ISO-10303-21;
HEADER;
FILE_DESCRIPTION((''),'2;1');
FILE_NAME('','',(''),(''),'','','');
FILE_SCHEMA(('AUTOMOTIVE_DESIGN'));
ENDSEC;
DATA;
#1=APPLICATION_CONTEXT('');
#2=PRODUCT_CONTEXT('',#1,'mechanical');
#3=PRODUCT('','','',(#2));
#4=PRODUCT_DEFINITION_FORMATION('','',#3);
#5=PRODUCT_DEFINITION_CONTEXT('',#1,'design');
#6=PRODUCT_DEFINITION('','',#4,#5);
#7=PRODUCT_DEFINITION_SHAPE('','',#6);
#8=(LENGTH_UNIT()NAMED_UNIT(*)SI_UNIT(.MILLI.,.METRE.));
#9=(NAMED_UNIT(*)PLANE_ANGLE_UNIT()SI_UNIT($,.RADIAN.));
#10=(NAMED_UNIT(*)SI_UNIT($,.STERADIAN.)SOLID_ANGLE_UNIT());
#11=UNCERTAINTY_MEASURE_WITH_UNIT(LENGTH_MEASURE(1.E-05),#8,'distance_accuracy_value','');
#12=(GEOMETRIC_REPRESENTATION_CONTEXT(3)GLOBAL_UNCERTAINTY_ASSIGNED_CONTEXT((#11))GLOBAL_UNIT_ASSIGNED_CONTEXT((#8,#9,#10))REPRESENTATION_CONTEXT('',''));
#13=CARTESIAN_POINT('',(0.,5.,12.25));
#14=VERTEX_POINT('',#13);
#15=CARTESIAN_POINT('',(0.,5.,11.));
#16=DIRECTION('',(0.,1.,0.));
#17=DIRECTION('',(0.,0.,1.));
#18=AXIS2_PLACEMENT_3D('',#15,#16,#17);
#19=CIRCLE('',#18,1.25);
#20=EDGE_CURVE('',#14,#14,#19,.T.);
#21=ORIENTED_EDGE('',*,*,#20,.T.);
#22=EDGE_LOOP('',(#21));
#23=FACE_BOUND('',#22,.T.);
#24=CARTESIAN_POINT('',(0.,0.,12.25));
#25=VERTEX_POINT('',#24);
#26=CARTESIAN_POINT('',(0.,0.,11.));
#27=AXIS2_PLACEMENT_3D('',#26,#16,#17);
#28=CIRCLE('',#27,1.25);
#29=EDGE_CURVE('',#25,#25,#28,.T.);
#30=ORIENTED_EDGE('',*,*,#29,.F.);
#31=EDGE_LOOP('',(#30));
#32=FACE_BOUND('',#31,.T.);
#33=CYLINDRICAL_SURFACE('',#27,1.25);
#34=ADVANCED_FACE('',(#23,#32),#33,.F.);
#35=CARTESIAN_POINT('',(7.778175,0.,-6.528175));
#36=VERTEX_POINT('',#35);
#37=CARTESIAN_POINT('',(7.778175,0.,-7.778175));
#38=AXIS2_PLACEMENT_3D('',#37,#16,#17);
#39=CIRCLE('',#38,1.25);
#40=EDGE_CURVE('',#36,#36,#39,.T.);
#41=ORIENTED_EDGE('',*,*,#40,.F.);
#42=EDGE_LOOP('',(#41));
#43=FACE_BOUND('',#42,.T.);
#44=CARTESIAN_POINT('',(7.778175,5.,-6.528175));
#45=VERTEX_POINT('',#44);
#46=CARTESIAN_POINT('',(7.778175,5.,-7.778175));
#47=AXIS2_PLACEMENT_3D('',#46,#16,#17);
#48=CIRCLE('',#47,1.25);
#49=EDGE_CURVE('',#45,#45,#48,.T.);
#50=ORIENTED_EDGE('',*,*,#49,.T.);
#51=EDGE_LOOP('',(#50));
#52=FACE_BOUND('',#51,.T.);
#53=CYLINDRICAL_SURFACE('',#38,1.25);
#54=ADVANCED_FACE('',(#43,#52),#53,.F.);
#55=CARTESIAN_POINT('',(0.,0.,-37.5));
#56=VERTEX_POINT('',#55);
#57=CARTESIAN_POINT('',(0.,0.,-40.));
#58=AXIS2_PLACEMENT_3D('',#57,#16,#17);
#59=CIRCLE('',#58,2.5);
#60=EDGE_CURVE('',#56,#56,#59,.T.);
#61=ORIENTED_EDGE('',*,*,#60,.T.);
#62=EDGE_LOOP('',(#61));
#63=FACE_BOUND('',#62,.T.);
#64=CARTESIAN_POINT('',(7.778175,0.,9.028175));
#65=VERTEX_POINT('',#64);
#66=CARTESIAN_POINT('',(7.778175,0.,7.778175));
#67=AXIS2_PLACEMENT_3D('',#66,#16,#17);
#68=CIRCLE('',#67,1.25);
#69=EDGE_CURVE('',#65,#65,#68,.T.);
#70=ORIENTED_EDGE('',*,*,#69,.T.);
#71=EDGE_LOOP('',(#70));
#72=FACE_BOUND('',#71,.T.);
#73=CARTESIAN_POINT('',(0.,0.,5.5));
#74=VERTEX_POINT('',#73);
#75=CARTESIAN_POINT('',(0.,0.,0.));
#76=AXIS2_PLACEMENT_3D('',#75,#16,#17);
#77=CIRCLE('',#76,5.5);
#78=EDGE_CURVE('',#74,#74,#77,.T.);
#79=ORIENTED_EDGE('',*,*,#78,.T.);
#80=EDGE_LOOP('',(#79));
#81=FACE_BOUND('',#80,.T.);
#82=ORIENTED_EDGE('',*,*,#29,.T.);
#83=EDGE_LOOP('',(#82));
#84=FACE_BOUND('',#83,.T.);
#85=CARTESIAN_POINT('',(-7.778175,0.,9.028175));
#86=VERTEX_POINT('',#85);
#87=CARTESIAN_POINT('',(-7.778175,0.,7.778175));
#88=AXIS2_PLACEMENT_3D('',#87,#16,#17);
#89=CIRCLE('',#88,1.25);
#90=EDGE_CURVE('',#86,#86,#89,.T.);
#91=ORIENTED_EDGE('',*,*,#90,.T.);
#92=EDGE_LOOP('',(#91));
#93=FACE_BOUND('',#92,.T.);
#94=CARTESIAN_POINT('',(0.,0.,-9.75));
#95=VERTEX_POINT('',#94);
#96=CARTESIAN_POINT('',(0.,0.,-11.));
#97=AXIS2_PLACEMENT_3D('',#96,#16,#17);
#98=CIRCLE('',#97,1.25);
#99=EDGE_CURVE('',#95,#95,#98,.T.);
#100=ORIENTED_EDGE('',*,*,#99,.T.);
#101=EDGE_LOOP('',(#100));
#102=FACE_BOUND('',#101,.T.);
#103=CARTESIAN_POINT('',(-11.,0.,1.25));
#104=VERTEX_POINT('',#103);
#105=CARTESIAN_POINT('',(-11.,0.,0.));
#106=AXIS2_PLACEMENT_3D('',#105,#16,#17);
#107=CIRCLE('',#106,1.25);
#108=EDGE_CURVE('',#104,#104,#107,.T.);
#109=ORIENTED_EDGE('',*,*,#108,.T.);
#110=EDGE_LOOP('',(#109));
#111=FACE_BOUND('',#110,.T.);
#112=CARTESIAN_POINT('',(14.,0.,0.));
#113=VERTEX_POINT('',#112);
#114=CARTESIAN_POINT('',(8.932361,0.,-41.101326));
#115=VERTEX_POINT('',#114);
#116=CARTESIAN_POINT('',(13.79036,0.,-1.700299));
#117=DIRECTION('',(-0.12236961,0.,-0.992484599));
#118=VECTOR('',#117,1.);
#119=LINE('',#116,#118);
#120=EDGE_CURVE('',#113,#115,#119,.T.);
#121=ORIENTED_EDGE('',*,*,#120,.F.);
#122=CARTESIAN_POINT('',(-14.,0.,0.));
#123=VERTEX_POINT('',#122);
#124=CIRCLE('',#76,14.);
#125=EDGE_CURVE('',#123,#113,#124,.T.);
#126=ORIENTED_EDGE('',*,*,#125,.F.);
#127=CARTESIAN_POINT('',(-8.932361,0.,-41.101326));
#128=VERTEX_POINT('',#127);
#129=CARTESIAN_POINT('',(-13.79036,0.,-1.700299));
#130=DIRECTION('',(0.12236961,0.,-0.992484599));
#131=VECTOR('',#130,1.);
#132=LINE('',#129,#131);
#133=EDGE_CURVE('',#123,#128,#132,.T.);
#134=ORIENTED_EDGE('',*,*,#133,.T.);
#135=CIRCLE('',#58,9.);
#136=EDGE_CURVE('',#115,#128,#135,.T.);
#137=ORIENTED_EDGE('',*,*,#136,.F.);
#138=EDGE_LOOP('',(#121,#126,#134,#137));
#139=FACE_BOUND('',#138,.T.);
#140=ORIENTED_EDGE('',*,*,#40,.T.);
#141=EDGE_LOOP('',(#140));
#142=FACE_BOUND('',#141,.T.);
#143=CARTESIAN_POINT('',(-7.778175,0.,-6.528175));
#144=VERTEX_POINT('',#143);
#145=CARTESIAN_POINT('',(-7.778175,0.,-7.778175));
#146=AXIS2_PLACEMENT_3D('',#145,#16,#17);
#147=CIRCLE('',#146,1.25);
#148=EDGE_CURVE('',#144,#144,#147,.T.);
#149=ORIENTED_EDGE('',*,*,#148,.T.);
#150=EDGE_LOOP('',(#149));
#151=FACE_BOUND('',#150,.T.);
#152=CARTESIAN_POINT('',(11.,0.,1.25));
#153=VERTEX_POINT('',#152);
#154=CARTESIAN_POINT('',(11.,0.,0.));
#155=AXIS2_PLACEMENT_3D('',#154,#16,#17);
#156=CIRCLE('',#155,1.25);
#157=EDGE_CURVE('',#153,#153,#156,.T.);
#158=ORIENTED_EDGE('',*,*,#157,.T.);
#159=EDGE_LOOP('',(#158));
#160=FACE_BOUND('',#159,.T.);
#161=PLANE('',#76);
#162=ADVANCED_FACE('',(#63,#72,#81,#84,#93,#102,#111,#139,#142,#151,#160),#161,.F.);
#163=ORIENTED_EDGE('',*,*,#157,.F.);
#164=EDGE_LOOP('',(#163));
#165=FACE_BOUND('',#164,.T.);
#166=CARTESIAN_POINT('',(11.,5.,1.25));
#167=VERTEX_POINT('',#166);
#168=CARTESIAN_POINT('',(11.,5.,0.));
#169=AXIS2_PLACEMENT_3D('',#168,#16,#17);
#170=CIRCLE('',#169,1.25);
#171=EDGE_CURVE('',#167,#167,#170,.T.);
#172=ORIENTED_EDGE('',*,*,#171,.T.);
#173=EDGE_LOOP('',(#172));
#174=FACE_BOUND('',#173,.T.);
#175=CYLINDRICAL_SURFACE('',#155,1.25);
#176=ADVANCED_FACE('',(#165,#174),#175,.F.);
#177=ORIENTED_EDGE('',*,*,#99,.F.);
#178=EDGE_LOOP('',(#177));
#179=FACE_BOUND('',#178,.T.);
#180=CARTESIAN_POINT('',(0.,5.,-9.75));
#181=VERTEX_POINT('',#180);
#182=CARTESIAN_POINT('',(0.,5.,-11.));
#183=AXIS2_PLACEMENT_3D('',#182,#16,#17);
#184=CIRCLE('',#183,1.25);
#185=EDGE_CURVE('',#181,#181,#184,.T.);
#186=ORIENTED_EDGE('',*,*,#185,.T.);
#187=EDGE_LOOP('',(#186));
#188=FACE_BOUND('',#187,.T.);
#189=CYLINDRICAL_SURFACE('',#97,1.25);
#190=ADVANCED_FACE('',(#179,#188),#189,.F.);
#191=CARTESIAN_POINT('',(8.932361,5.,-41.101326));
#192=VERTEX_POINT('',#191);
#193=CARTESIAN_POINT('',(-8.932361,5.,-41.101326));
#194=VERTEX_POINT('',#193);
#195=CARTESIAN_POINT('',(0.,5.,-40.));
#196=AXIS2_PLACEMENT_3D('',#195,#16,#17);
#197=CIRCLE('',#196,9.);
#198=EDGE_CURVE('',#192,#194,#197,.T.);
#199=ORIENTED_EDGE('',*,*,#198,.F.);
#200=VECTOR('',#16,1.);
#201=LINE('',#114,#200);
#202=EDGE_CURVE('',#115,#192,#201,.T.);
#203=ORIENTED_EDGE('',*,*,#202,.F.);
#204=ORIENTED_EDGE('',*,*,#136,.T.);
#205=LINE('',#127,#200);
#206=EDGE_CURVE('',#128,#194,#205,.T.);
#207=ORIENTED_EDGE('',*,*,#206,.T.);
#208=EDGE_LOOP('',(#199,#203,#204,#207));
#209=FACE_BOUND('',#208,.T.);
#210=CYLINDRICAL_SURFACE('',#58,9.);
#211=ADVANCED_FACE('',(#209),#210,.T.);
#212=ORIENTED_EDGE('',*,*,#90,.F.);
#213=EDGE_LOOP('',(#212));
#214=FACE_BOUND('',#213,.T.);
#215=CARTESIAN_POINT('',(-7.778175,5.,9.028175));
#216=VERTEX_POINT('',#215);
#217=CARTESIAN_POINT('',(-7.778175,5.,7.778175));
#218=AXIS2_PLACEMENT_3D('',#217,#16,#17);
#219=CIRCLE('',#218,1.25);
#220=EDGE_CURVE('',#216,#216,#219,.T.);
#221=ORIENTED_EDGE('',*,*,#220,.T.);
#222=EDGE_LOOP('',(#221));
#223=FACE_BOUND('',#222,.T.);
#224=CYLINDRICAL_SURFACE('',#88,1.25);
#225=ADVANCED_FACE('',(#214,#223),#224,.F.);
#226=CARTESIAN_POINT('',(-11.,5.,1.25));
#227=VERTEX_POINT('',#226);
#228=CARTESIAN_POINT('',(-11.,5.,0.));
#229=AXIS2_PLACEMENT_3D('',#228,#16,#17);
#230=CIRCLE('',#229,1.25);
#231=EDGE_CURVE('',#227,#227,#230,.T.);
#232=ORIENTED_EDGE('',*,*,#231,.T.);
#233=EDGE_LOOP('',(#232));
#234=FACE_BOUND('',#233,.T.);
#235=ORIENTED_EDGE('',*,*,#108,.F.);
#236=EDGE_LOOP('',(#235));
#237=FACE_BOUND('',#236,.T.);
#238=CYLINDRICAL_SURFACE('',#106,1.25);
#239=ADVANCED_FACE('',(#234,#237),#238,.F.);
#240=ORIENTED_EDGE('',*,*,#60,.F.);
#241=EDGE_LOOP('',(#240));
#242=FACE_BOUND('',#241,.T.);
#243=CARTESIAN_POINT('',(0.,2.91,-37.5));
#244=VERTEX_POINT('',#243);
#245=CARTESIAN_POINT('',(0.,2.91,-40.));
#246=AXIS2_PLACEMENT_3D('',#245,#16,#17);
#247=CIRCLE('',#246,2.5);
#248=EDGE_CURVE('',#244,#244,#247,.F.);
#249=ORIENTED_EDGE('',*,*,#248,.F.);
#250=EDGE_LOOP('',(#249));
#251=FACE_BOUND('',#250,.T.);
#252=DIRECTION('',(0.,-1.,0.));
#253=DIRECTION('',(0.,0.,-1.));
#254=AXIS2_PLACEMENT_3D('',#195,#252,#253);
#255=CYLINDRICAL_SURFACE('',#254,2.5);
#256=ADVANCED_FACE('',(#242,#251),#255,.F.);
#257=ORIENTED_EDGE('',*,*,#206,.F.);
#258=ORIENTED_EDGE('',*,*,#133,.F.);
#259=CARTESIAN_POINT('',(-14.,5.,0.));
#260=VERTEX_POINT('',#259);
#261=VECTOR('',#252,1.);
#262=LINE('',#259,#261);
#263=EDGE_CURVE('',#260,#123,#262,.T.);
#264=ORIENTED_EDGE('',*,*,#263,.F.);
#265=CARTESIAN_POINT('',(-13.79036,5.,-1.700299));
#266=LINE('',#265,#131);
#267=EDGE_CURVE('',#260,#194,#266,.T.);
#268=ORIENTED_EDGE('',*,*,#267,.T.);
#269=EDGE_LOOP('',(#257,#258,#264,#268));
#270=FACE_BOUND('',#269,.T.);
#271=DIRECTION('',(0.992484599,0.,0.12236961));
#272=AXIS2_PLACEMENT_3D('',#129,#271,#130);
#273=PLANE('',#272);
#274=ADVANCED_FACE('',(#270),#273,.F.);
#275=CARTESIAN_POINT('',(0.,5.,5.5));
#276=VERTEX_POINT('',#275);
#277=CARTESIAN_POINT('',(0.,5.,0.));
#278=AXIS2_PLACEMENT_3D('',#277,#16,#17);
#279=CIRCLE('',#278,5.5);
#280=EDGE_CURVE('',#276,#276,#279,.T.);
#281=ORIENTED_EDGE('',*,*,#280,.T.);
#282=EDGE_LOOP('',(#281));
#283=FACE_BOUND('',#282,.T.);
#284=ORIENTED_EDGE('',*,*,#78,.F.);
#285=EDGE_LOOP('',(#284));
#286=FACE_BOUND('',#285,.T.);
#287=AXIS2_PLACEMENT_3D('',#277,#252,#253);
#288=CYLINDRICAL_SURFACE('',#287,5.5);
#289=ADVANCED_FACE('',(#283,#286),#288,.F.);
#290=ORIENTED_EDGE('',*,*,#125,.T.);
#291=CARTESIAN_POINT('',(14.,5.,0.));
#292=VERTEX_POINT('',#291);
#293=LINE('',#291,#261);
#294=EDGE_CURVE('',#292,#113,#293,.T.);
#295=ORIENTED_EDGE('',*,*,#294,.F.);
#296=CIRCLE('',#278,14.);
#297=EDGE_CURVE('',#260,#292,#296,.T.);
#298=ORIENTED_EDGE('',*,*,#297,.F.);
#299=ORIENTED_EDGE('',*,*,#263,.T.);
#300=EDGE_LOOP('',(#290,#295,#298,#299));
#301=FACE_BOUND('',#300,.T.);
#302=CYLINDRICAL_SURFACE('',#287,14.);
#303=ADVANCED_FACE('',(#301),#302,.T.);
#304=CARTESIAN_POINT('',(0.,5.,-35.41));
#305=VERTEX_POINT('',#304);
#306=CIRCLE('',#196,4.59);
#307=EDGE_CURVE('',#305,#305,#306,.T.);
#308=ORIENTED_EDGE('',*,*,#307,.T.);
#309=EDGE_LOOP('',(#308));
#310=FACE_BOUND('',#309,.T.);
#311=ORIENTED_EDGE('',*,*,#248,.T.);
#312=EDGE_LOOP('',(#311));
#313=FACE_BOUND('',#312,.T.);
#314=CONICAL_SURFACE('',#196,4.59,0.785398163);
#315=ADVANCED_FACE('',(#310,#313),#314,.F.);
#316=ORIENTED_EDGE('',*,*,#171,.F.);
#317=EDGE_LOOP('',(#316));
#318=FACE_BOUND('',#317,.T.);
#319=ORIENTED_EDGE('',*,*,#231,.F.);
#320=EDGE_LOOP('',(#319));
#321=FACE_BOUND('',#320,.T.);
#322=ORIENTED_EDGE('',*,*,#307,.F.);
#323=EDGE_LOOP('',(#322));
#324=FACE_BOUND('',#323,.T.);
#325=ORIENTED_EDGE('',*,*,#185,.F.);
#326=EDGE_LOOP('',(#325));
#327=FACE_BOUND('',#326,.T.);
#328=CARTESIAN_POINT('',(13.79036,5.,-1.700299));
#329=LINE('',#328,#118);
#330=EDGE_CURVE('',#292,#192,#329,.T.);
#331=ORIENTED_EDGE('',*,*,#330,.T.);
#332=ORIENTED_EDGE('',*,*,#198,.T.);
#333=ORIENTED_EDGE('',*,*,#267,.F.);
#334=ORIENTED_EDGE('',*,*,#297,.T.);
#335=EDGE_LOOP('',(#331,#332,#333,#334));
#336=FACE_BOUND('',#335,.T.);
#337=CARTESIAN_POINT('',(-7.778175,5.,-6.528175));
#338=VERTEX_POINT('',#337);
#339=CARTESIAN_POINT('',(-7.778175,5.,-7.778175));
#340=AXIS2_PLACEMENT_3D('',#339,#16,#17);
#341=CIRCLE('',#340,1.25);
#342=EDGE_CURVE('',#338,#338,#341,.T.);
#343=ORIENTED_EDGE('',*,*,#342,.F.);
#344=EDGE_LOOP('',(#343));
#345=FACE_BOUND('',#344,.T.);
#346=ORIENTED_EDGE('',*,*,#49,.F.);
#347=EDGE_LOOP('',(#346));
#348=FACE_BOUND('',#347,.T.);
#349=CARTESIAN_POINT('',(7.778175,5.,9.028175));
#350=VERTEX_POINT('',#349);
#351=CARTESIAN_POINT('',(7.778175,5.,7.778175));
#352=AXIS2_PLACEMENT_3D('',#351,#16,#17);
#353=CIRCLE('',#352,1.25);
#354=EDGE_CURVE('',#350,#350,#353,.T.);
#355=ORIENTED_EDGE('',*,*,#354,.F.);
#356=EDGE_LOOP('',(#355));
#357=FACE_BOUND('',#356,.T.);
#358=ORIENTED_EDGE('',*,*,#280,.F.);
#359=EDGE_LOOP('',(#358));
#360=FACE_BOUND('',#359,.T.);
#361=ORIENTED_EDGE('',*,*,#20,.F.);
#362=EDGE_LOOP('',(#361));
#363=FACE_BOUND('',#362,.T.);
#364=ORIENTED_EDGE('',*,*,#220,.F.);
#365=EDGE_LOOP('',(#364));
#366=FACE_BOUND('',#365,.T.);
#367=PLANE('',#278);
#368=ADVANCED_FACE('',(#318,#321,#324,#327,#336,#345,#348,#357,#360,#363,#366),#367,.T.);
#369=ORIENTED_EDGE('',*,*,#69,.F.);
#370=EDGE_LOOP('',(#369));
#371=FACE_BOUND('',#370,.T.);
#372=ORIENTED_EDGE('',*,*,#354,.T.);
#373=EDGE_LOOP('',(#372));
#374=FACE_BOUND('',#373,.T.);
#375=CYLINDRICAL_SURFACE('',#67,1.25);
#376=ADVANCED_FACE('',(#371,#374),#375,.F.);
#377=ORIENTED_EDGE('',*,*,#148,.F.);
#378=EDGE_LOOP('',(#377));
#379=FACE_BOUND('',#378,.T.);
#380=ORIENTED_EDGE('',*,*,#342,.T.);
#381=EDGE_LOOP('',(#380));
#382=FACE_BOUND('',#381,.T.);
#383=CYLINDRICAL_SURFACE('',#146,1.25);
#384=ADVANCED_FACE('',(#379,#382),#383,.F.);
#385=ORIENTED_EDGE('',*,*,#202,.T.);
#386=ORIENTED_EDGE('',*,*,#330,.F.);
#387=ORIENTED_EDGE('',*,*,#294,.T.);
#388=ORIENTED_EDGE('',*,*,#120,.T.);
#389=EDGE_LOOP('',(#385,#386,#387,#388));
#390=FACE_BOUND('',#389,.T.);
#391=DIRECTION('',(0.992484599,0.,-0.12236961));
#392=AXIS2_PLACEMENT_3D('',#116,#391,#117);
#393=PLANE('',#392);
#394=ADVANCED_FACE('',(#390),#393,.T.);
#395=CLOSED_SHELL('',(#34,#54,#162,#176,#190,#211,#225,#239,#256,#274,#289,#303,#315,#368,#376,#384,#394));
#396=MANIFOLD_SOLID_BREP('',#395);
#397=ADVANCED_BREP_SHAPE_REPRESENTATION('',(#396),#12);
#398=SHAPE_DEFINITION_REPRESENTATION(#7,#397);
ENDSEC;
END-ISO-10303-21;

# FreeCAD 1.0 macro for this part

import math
import FreeCAD as App
import Part
import Sketcher
from FreeCAD import Vector

doc = App.newDocument("Part")
body = doc.addObject("PartDesign::Body", "Body")

sketch1 = body.newObject("Sketcher::SketchObject", "Sketch")
sketch1.AttachmentSupport = (doc.getObject("XZ_Plane"), [""])
sketch1.MapMode = "FlatFace"
sketch1.addGeometry(Part.LineSegment(Vector(-14, -40, 0), Vector(-14, 0, 0)), False)
sketch1.addGeometry(Part.ArcOfCircle(Part.Circle(Vector(0, 0, 0), Vector(0, 0, 1), 14), math.radians(0), math.radians(180)), False)
sketch1.addGeometry(Part.LineSegment(Vector(14, 0, 0), Vector(14, -40, 0)), False)
sketch1.addGeometry(Part.ArcOfCircle(Part.Circle(Vector(0, -40, 0), Vector(0, 0, 1), 14), math.radians(180), math.radians(360)), False)
sketch1.addGeometry(Part.Circle(Vector(0, 0, 0), Vector(0, 0, 1), 5.5), False)
sketch1.addGeometry(Part.Circle(Vector(0, -40, 0), Vector(0, 0, 1), 2.5), False)
sketch1.addConstraint(Sketcher.Constraint("Tangent", 0, 2, 1, 2))
sketch1.addConstraint(Sketcher.Constraint("Tangent", 1, 1, 2, 1))
sketch1.addConstraint(Sketcher.Constraint("Tangent", 2, 2, 3, 2))
sketch1.addConstraint(Sketcher.Constraint("Tangent", 3, 1, 0, 1))
sketch1.addConstraint(Sketcher.Constraint("Vertical", 0))
sketch1.addConstraint(Sketcher.Constraint("Vertical", 2))
sketch1.addConstraint(Sketcher.Constraint("Coincident", 1, 3, -1, 1))
sketch1.addConstraint(Sketcher.Constraint("Coincident", 4, 3, -1, 1))
sketch1.addConstraint(Sketcher.Constraint("Coincident", 5, 3, 3, 3))
sketch1.addConstraint(Sketcher.Constraint("Diameter", 4, 11.0))
sketch1.addConstraint(Sketcher.Constraint("Diameter", 5, 5.0))
sketch1.addConstraint(Sketcher.Constraint("Radius", 1, 14.0))
sketch1.addConstraint(Sketcher.Constraint("DistanceY", 0, 1, 0, 2, 40.0))
pad1 = body.newObject("PartDesign::Pad", "Pad")
pad1.Profile = sketch1
pad1.Length = 5
pad1.Reversed = True

sketch2 = body.newObject("Sketcher::SketchObject", "Sketch001")
sketch2.AttachmentSupport = (doc.getObject("XZ_Plane"), [""])
sketch2.MapMode = "FlatFace"
sketch2.AttachmentOffset = App.Placement(Vector(0, 0, -5), App.Rotation())
sketch2.addGeometry(Part.Circle(Vector(0, -11, 0), Vector(0, 0, 1), 1.2), False)
sketch2.addGeometry(Part.Circle(Vector(7.8, -7.8, 0), Vector(0, 0, 1), 1.2), False)
sketch2.addGeometry(Part.Circle(Vector(11, 0, 0), Vector(0, 0, 1), 1.2), False)
sketch2.addGeometry(Part.Circle(Vector(7.8, 7.8, 0), Vector(0, 0, 1), 1.2), False)
sketch2.addGeometry(Part.Circle(Vector(0, 11, 0), Vector(0, 0, 1), 1.2), False)
sketch2.addGeometry(Part.Circle(Vector(-7.8, 7.8, 0), Vector(0, 0, 1), 1.2), False)
sketch2.addGeometry(Part.Circle(Vector(-11, 0, 0), Vector(0, 0, 1), 1.2), False)
sketch2.addGeometry(Part.Circle(Vector(-7.8, -7.8, 0), Vector(0, 0, 1), 1.2), False)
sketch2.addConstraint(Sketcher.Constraint("Equal", 0, 1))
sketch2.addConstraint(Sketcher.Constraint("Equal", 1, 2))
sketch2.addConstraint(Sketcher.Constraint("Equal", 2, 3))
sketch2.addConstraint(Sketcher.Constraint("Equal", 3, 4))
sketch2.addConstraint(Sketcher.Constraint("Equal", 4, 5))
sketch2.addConstraint(Sketcher.Constraint("Equal", 5, 6))
sketch2.addConstraint(Sketcher.Constraint("Equal", 6, 7))
sketch2.addConstraint(Sketcher.Constraint("Symmetric", 0, 3, 4, 3, -1, 1))
sketch2.addConstraint(Sketcher.Constraint("Symmetric", 1, 3, 5, 3, -1, 1))
sketch2.addConstraint(Sketcher.Constraint("Symmetric", 2, 3, 6, 3, -1, 1))
sketch2.addConstraint(Sketcher.Constraint("Symmetric", 3, 3, 7, 3, -1, 1))
sketch2.addConstraint(Sketcher.Constraint("Symmetric", 3, 3, 5, 3, -2))
sketch2.addConstraint(Sketcher.Constraint("PointOnObject", 0, 3, -2))
sketch2.addConstraint(Sketcher.Constraint("PointOnObject", 2, 3, -1))
sketch2.addConstraint(Sketcher.Constraint("Diameter", 0, 2.5))
sketch2.addConstraint(Sketcher.Constraint("DistanceY", 0, 3, -1, 1, 11.0))
sketch2.addConstraint(Sketcher.Constraint("DistanceX", -1, 1, 2, 3, 11.0))
sketch2.addConstraint(Sketcher.Constraint("DistanceY", 1, 3, 3, 3, 15.556349))
sketch2.addConstraint(Sketcher.Constraint("DistanceX", 5, 3, 3, 3, 15.556349))
pocket1 = body.newObject("PartDesign::Pocket", "Pocket")
pocket1.Profile = sketch2
pocket1.Type = "ThroughAll"
pocket1.Reversed = True

sketch3 = body.newObject("Sketcher::SketchObject", "Sketch002")
sketch3.AttachmentSupport = (doc.getObject("XZ_Plane"), [""])
sketch3.MapMode = "FlatFace"
sketch3.AttachmentOffset = App.Placement(Vector(0, 0, -5), App.Rotation())
sketch3.addGeometry(Part.LineSegment(Vector(-14, -40, 0), Vector(-14, 0, 0)), False)
sketch3.addGeometry(Part.LineSegment(Vector(-14, 0, 0), Vector(-9, -41, 0)), False)
sketch3.addGeometry(Part.ArcOfCircle(Part.Circle(Vector(0, -40, 0), Vector(0, 0, 1), 9), math.radians(-173), math.radians(-7)), False)
sketch3.addGeometry(Part.LineSegment(Vector(9, -41, 0), Vector(14, 0, 0)), False)
sketch3.addGeometry(Part.LineSegment(Vector(14, 0, 0), Vector(14, -40, 0)), False)
sketch3.addGeometry(Part.ArcOfCircle(Part.Circle(Vector(0, -40, 0), Vector(0, 0, 1), 14), math.radians(180), math.radians(360)), False)
sketch3.addConstraint(Sketcher.Constraint("Coincident", 0, 2, 1, 1))
sketch3.addConstraint(Sketcher.Constraint("Tangent", 1, 2, 2, 1))
sketch3.addConstraint(Sketcher.Constraint("Tangent", 2, 2, 3, 1))
sketch3.addConstraint(Sketcher.Constraint("Coincident", 3, 2, 4, 1))
sketch3.addConstraint(Sketcher.Constraint("Tangent", 4, 2, 5, 2))
sketch3.addConstraint(Sketcher.Constraint("Tangent", 5, 1, 0, 1))
sketch3.addConstraint(Sketcher.Constraint("Vertical", 0))
sketch3.addConstraint(Sketcher.Constraint("Vertical", 4))
sketch3.addConstraint(Sketcher.Constraint("Coincident", 5, 3, 2, 3))
sketch3.addConstraint(Sketcher.Constraint("Symmetric", 0, 2, 3, 2, -1, 1))
sketch3.addConstraint(Sketcher.Constraint("PointOnObject", 0, 2, -1))
sketch3.addConstraint(Sketcher.Constraint("Radius", 2, 9.0))
sketch3.addConstraint(Sketcher.Constraint("Radius", 5, 14.0))
sketch3.addConstraint(Sketcher.Constraint("DistanceY", 0, 1, 0, 2, 40.0))
pocket2 = body.newObject("PartDesign::Pocket", "Pocket001")
pocket2.Profile = sketch3
pocket2.Type = "ThroughAll"
pocket2.Reversed = True

sketch4 = body.newObject("Sketcher::SketchObject", "Sketch003")
sketch4.AttachmentSupport = (doc.getObject("XZ_Plane"), [""])
sketch4.MapMode = "FlatFace"
sketch4.AttachmentOffset = App.Placement(Vector(0, 0, -5), App.Rotation())
sketch4.addGeometry(Part.Circle(Vector(0, -40, 0), Vector(0, 0, 1), 2.2), False)
sketch4.addConstraint(Sketcher.Constraint("PointOnObject", 0, 3, -2))
sketch4.addConstraint(Sketcher.Constraint("Diameter", 0, 4.5))
sketch4.addConstraint(Sketcher.Constraint("DistanceY", 0, 3, -1, 1, 40.0))
doc.recompute()
hole = body.newObject("PartDesign::Hole", "Hole")
hole.Profile = sketch4
hole.ThreadType = "None"
hole.Diameter = 4.5
hole.DepthType = "ThroughAll"
hole.HoleCutType = "Countersink"
hole.HoleCutDiameter = 9.18
hole.HoleCutCountersinkAngle = 90
hole.Reversed = True

doc.recompute()
